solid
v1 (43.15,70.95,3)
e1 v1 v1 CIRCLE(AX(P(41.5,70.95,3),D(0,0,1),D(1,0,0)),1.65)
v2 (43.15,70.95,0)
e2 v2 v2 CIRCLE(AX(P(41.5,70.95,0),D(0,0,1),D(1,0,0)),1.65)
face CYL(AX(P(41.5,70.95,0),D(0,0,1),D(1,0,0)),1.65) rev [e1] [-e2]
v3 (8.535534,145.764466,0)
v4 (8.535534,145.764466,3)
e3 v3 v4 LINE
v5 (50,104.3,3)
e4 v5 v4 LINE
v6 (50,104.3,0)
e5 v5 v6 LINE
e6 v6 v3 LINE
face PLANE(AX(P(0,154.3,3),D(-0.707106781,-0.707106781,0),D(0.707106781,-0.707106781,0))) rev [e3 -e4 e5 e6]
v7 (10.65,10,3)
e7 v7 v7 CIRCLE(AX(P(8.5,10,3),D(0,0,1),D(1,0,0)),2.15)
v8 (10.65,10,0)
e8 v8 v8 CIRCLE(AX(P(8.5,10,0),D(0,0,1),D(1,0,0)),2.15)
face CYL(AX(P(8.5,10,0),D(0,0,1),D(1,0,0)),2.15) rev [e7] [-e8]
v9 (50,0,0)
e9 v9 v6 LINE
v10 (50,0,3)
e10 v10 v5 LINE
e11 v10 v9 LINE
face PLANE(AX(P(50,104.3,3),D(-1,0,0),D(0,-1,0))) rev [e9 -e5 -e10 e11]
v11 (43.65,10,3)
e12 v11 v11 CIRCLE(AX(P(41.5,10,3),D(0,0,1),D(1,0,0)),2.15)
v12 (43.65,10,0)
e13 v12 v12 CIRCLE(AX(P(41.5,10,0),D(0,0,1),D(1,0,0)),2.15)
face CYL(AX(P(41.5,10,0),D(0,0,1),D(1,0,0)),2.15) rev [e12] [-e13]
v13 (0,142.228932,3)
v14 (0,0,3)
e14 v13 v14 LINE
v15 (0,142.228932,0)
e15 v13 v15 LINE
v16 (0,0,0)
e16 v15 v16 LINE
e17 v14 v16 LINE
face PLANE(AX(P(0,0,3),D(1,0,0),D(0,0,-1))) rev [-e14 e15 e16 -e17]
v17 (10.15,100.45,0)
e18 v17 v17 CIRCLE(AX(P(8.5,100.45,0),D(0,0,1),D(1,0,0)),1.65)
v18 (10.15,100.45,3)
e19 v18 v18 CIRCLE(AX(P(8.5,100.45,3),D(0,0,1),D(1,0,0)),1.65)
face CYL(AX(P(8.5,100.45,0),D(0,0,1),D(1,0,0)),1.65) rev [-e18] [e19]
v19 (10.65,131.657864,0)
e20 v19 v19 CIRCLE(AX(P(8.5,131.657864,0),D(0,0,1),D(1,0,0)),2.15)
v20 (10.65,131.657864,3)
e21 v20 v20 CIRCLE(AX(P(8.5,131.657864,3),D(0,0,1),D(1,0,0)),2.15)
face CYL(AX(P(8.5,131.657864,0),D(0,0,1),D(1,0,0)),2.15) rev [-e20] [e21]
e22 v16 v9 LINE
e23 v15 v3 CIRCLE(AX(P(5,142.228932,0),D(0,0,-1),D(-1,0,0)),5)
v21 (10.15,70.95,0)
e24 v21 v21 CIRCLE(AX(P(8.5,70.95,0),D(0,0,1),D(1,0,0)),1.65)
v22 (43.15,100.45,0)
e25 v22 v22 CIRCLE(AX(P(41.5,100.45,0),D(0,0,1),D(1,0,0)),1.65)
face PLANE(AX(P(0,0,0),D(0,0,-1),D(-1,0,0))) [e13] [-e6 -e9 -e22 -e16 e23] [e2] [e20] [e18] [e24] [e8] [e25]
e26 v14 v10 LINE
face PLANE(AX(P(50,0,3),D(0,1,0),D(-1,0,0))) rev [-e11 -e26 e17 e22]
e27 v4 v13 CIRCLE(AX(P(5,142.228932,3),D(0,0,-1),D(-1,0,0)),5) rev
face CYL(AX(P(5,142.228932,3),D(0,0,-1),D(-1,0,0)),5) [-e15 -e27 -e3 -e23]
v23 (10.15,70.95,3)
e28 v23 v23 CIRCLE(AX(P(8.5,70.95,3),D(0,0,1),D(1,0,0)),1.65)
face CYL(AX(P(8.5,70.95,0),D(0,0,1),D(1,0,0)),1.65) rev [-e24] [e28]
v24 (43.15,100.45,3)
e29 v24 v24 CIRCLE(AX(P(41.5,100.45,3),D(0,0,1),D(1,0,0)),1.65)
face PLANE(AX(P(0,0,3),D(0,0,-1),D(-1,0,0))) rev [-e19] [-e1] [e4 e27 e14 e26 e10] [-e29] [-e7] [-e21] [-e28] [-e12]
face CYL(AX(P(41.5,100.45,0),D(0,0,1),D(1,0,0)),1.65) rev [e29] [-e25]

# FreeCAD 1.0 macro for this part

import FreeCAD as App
import Part
import Sketcher

V = App.Vector
Q = App.Units.Quantity


def edges_at(feature, points):
    """Names of the edges that pass closest to the given points."""
    edges = feature.Shape.Edges
    near = lambda p: min(range(len(edges)), key=lambda i: edges[i].distToShape(Part.Vertex(*p))[0])
    return sorted({f"Edge{near(p) + 1}" for p in points})

doc = App.newDocument("Part")
params = doc.addObject("Spreadsheet::Sheet", "Params")
for row, (alias, value) in enumerate([
    ("sketch1_width", "50 mm"),
    ("sketch1_height", "154.3 mm"),
    ("pad1_length", "3 mm"),
    ("sketch2_diameter", "4.3 mm"),
    ("sketch2_diameter2", "3.3 mm"),
    ("pocket1_length", "3 mm"),
    ("fillet_radius", "5 mm"),
], start=1):
    params.set(f"A{row}", alias)
    params.set(f"B{row}", "=" + value)
    params.setAlias(f"B{row}", alias)

body = doc.addObject("PartDesign::Body", "Body")

sketch1 = doc.addObject("Sketcher::SketchObject", "Sketch")
body.addObject(sketch1)
sketch1.AttachmentSupport = (doc.XY_Plane, [""])
sketch1.MapMode = "FlatFace"
sketch1.addGeometry([
    Part.LineSegment(V(0, 154.3, 0), V(0, 0, 0)),
    Part.LineSegment(V(0, 0, 0), V(50, 0, 0)),
    Part.LineSegment(V(50, 0, 0), V(50, 104.3, 0)),
    Part.LineSegment(V(50, 104.3, 0), V(0, 154.3, 0)),
], False)
sketch1.addConstraint([
    Sketcher.Constraint("Coincident", 0, 2, 1, 1),
    Sketcher.Constraint("Coincident", 1, 2, 2, 1),
    Sketcher.Constraint("Coincident", 2, 2, 3, 1),
    Sketcher.Constraint("Coincident", 3, 2, 0, 1),
    Sketcher.Constraint("Vertical", 0),
    Sketcher.Constraint("Horizontal", 1),
    Sketcher.Constraint("Vertical", 2),
    Sketcher.Constraint("Coincident", 0, 2, -1, 1),
    Sketcher.Constraint("DistanceX", 1, 1, 1, 2, Q("50 mm")),
    Sketcher.Constraint("Angle", 3, Q("135 deg")),
    Sketcher.Constraint("DistanceY", 0, 2, 0, 1, Q("154.3 mm")),
])
sketch1.setExpression("Constraints[8]", "Params.sketch1_width")
sketch1.setExpression("Constraints[10]", "Params.sketch1_height")
pad1 = doc.addObject("PartDesign::Pad", "Pad")
body.addObject(pad1)
pad1.Profile = sketch1
pad1.setExpression("Length", "Params.pad1_length")

sketch2 = doc.addObject("Sketcher::SketchObject", "Sketch001")
body.addObject(sketch2)
sketch2.AttachmentSupport = (doc.XY_Plane, [""])
sketch2.MapMode = "FlatFace"
sketch2.AttachmentOffset = App.Placement(V(0, 0, 3), App.Rotation())
sketch2.addGeometry([
    Part.Circle(V(8.5, 10, 0), V(0, 0, 1), 2.15),
    Part.Circle(V(41.5, 10, 0), V(0, 0, 1), 2.15),
    Part.Circle(V(8.5, 131.657864, 0), V(0, 0, 1), 2.15),
    Part.Circle(V(8.5, 100.45, 0), V(0, 0, 1), 1.65),
    Part.Circle(V(8.5, 70.95, 0), V(0, 0, 1), 1.65),
    Part.Circle(V(41.5, 70.95, 0), V(0, 0, 1), 1.65),
    Part.Circle(V(41.5, 100.45, 0), V(0, 0, 1), 1.65),
], False)
sketch2.addConstraint([
    Sketcher.Constraint("Equal", 0, 1),
    Sketcher.Constraint("Equal", 1, 2),
    Sketcher.Constraint("Equal", 3, 4),
    Sketcher.Constraint("Equal", 4, 5),
    Sketcher.Constraint("Equal", 5, 6),
    Sketcher.Constraint("Horizontal", 0, 3, 1, 3),
    Sketcher.Constraint("Horizontal", 4, 3, 5, 3),
    Sketcher.Constraint("Horizontal", 3, 3, 6, 3),
    Sketcher.Constraint("Vertical", 0, 3, 2, 3),
    Sketcher.Constraint("Vertical", 2, 3, 3, 3),
    Sketcher.Constraint("Vertical", 3, 3, 4, 3),
    Sketcher.Constraint("Vertical", 1, 3, 5, 3),
    Sketcher.Constraint("Vertical", 5, 3, 6, 3),
    Sketcher.Constraint("Diameter", 0, Q("4.3 mm")),
    Sketcher.Constraint("Diameter", 3, Q("3.3 mm")),
    Sketcher.Constraint("DistanceY", -1, 1, 0, 3, Q("10 mm")),
    Sketcher.Constraint("DistanceX", 0, 3, 1, 3, Q("33 mm")),
    Sketcher.Constraint("DistanceX", -1, 1, 0, 3, Q("8.5 mm")),
    Sketcher.Constraint("DistanceY", 4, 3, 3, 3, Q("29.5 mm")),
    Sketcher.Constraint("DistanceY", -1, 1, 3, 3, Q("100.45 mm")),
    Sketcher.Constraint("DistanceY", -1, 1, 2, 3, Q("131.657864 mm")),
])
sketch2.setExpression("Constraints[13]", "Params.sketch2_diameter")
sketch2.setExpression("Constraints[14]", "Params.sketch2_diameter2")
pocket1 = doc.addObject("PartDesign::Pocket", "Pocket")
body.addObject(pocket1)
pocket1.Profile = sketch2
pocket1.setExpression("Length", "Params.pocket1_length")
doc.recompute()

fillet = doc.addObject("PartDesign::Fillet", "Fillet")
body.addObject(fillet)
fillet.Base = (pocket1, edges_at(pocket1, [(0, 154.3, 1.5)]))
fillet.setExpression("Radius", "Params.fillet_radius")

doc.recompute()
